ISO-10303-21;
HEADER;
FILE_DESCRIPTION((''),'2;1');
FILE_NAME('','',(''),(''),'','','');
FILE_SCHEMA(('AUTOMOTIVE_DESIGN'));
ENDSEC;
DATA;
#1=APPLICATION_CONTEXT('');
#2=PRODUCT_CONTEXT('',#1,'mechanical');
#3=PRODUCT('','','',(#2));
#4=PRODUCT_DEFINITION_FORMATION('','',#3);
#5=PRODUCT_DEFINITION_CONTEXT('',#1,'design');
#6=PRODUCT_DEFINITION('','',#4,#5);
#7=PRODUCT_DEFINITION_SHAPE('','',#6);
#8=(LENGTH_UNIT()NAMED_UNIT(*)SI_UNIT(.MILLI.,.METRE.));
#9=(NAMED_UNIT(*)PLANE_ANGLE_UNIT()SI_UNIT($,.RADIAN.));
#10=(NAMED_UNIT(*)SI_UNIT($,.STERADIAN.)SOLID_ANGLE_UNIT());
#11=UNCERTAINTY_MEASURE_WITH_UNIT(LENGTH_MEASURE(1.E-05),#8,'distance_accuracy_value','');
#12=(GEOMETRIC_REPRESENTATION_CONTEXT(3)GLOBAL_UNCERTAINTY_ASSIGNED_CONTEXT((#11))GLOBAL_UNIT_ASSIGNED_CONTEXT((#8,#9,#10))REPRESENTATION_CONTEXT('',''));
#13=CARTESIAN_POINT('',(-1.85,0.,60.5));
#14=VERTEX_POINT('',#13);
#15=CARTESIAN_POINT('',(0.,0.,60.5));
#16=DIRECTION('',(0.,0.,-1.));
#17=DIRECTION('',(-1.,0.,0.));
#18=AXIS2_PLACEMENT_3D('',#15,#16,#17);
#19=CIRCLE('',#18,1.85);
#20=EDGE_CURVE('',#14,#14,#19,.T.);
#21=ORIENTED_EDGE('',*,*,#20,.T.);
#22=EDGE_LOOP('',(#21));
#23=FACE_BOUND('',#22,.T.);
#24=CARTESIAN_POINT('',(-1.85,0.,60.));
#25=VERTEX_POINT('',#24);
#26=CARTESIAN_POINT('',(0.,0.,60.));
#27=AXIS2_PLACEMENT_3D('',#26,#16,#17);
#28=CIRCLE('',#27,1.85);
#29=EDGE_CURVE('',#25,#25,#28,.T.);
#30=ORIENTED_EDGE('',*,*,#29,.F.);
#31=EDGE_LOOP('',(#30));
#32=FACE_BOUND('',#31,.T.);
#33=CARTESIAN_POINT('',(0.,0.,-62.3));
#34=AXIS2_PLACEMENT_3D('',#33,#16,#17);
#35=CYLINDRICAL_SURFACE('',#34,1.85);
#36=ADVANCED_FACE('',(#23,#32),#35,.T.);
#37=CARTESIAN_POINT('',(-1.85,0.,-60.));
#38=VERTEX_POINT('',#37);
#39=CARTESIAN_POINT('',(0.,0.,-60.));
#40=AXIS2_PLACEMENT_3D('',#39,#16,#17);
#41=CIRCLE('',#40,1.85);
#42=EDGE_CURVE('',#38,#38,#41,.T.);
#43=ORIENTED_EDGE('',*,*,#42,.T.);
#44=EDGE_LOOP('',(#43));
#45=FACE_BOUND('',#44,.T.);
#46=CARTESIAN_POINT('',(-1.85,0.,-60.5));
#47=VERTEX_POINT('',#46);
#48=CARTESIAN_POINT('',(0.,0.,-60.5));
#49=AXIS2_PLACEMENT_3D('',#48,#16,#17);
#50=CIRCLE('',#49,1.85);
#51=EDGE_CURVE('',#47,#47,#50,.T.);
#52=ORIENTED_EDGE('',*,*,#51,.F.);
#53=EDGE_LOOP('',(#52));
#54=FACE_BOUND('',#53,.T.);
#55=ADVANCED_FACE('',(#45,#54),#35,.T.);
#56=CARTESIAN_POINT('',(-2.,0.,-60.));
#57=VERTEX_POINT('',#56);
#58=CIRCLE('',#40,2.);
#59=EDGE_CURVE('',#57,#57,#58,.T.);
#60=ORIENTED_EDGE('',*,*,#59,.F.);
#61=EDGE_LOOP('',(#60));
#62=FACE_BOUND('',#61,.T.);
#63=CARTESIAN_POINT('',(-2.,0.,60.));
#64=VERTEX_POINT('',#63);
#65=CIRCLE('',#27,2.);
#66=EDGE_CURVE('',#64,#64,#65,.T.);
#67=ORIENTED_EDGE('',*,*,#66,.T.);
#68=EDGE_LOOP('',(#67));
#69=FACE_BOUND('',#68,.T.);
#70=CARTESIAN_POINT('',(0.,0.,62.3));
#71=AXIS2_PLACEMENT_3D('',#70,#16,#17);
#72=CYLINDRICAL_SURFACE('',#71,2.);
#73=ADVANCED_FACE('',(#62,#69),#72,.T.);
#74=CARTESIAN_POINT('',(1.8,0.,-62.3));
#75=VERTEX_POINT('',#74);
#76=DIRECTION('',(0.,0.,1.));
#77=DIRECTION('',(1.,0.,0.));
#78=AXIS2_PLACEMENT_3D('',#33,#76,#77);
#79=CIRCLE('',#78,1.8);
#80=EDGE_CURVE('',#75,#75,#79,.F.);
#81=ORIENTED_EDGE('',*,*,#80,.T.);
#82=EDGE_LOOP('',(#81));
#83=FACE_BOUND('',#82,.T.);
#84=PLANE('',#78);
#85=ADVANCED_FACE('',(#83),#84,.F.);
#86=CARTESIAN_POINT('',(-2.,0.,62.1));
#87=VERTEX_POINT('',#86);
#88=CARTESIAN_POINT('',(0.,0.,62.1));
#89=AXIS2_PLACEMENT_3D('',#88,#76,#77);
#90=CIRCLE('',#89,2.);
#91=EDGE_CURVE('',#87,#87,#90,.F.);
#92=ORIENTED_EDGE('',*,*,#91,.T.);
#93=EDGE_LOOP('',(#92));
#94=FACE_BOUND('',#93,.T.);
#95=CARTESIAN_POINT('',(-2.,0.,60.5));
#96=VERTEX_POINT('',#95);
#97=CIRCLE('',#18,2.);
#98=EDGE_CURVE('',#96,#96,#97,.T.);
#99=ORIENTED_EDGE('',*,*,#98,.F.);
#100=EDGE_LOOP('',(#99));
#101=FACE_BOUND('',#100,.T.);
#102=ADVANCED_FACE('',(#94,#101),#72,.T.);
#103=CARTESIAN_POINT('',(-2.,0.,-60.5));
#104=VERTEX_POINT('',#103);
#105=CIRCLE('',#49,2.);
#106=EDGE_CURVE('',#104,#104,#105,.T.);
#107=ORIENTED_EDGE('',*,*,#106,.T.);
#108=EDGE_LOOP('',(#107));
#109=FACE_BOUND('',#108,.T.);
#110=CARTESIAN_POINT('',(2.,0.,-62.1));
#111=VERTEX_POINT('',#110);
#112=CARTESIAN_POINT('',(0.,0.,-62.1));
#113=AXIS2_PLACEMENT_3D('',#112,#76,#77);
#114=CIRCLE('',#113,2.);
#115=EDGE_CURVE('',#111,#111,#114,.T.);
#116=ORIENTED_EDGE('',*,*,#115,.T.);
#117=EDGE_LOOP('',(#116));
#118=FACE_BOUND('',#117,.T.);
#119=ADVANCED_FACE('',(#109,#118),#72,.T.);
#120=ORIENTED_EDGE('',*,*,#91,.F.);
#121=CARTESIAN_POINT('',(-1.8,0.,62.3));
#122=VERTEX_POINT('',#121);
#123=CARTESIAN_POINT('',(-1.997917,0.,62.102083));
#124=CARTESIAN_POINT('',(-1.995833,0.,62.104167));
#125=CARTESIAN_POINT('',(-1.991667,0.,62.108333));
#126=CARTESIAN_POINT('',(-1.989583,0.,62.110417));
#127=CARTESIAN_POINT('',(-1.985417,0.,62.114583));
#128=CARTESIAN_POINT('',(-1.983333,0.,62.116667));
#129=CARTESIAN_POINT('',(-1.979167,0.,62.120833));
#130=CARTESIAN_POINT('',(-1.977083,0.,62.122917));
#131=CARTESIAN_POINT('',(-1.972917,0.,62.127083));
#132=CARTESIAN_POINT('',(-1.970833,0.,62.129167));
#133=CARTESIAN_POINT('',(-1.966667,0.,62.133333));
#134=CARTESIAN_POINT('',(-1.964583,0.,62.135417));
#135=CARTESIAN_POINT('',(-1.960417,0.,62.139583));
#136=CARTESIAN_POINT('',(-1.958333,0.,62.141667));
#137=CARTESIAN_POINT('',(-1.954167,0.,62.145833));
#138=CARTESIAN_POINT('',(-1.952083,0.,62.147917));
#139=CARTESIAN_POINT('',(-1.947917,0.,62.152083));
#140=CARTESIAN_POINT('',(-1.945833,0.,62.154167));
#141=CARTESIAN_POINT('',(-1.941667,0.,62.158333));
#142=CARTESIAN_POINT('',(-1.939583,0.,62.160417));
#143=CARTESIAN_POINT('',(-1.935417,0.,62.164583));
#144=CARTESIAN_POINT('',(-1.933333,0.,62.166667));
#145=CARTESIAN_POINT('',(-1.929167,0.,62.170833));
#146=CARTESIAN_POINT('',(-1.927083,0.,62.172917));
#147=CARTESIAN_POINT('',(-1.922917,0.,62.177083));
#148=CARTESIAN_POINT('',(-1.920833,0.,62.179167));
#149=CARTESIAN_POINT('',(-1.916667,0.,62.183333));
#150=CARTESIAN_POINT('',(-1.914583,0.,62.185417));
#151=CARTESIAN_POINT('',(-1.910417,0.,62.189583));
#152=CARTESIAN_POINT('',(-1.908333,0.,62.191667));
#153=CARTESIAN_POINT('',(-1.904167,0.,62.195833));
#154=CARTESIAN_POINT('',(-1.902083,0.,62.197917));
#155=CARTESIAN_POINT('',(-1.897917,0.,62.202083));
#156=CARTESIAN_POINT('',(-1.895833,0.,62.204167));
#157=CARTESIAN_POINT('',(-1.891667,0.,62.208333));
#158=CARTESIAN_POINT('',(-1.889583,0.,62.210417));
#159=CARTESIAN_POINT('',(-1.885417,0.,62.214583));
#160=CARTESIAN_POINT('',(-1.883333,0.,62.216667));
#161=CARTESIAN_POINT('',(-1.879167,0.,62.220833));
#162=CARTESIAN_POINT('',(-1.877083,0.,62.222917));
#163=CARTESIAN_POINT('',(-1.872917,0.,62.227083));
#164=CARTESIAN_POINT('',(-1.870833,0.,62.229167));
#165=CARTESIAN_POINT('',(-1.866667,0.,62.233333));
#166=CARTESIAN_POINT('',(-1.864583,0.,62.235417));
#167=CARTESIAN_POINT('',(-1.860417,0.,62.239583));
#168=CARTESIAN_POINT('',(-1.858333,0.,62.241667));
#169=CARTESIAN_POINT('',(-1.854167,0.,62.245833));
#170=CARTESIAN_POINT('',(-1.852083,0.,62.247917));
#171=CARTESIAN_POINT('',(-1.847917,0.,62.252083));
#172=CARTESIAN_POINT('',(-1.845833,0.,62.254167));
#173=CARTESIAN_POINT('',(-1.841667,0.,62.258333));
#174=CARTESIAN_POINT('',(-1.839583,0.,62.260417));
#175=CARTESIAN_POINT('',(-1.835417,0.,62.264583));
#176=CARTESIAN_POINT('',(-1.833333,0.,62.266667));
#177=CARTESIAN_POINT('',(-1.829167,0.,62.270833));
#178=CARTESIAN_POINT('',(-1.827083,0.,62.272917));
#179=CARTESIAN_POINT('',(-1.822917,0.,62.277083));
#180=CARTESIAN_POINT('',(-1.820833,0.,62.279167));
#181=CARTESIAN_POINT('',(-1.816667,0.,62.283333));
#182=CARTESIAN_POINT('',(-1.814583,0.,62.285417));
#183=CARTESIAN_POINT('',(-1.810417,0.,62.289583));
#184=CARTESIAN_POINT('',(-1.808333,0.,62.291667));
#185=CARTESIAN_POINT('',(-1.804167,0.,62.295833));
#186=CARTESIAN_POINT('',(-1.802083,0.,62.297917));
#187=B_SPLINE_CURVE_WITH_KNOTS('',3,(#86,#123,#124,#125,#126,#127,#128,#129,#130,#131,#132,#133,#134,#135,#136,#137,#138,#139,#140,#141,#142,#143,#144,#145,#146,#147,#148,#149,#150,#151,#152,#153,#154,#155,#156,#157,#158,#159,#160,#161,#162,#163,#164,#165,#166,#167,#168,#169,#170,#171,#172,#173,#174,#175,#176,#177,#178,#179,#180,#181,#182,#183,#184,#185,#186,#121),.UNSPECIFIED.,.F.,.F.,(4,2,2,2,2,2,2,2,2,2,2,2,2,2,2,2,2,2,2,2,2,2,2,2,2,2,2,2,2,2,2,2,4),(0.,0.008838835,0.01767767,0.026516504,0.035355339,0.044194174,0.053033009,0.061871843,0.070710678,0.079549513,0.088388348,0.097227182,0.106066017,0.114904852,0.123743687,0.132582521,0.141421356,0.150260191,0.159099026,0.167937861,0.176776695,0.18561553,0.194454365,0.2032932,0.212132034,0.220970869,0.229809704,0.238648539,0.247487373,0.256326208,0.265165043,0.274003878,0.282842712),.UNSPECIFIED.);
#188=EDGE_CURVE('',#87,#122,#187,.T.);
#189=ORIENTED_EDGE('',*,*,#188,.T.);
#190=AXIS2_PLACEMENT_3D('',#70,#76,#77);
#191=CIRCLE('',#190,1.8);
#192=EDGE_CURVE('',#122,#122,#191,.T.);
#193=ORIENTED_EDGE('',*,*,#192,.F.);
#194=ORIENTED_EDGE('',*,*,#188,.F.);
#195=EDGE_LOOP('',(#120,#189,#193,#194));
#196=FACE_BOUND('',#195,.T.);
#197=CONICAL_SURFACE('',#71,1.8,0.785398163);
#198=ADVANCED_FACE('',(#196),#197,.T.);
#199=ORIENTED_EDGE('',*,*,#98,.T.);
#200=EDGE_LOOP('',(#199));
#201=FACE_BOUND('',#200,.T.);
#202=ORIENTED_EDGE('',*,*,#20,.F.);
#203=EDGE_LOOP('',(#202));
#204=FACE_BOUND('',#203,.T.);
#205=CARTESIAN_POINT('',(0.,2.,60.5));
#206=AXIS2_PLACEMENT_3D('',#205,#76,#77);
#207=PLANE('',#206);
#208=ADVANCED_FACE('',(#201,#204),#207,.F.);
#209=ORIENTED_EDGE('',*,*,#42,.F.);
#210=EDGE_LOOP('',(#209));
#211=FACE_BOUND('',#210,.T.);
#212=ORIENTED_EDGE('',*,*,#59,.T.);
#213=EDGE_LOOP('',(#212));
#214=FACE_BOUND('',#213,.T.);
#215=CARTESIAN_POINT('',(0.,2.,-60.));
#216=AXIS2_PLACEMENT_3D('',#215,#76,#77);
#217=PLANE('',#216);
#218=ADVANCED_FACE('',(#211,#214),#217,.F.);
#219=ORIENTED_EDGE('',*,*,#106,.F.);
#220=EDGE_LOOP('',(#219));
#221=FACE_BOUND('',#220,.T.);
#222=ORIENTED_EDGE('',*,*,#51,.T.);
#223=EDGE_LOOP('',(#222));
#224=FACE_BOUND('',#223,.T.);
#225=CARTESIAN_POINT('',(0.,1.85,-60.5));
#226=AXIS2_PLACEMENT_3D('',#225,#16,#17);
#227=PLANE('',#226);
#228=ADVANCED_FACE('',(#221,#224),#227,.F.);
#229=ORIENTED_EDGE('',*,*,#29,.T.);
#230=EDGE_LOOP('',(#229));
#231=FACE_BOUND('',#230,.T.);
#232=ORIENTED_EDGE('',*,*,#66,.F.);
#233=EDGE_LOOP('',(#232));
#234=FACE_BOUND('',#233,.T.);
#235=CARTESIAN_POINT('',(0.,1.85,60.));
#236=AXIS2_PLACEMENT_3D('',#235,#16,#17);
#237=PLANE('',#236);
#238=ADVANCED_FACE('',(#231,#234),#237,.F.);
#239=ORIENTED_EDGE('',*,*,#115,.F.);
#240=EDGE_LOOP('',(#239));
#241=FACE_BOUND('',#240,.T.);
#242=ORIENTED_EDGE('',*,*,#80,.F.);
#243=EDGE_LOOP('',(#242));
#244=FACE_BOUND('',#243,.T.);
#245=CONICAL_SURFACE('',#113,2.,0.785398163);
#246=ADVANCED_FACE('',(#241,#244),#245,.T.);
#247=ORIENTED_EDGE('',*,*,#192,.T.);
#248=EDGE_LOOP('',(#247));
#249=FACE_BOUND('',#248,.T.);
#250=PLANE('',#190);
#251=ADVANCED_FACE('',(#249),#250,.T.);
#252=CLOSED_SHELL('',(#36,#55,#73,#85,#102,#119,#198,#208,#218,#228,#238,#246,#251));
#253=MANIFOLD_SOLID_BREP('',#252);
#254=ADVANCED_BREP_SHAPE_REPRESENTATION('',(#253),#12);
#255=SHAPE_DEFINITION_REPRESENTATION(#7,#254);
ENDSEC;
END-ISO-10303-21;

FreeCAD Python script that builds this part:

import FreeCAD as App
import Part
import Sketcher
Q = App.Units.Quantity


def edges_at(feature, points):
    """Names of the edges that pass closest to the given points."""
    edges = feature.Shape.Edges
    near = lambda p: min(range(len(edges)), key=lambda i: edges[i].distToShape(Part.Vertex(*p))[0])
    return sorted({f"Edge{near(p) + 1}" for p in points})

doc = App.newDocument("Part")
params = doc.addObject("Spreadsheet::Sheet", "Params")
for row, (alias, value) in enumerate([
    ("sketch1_diameter", "4 mm"),
    ("pad1_length", "124.6 mm"),
    ("sketch2_height", "0.5 mm"),
    ("sketch2_width", "0.15 mm"),
    ("groove_angle", "360 deg"),
    ("chamfer_size", "0.2 mm"),
], start=1):
    params.set(f"A{row}", alias)
    params.set(f"B{row}", "=" + value)
    params.setAlias(f"B{row}", alias)

body = doc.addObject("PartDesign::Body", "Body")

# Sketch on XY plane
sketch1 = body.newObject("Sketcher::SketchObject", "Sketch")
sketch1.AttachmentSupport = (doc.getObject("XY_Plane"), [""])
sketch1.MapMode = "FlatFace"
sketch1.addGeometry(Part.Circle(App.Vector(0, 0, 0), App.Vector(0, 0, 1), 2), False)
sketch1.addConstraint([
    Sketcher.Constraint("Coincident", 0, 3, -1, 1),
    Sketcher.Constraint("Diameter", 0, Q("4 mm")),
])
sketch1.setExpression("Constraints[1]", "Params.sketch1_diameter")
pad1 = body.newObject("PartDesign::Pad", "Pad")
pad1.Profile = sketch1
pad1.setExpression("Length", "Params.pad1_length")
pad1.Midplane = True

# Sketch on YZ plane
sketch2 = body.newObject("Sketcher::SketchObject", "Sketch001")
sketch2.AttachmentSupport = (doc.getObject("YZ_Plane"), [""])
sketch2.MapMode = "FlatFace"
sketch2.addGeometry([
    Part.LineSegment(App.Vector(2, 60.5, 0), App.Vector(1.85, 60.5, 0)),  # 0
    Part.LineSegment(App.Vector(1.85, 60.5, 0), App.Vector(1.85, 60, 0)),  # 1
    Part.LineSegment(App.Vector(1.85, 60, 0), App.Vector(2, 60, 0)),  # 2
    Part.LineSegment(App.Vector(2, 60, 0), App.Vector(2, 60.5, 0)),  # 3
    Part.LineSegment(App.Vector(2, -60, 0), App.Vector(1.85, -60, 0)),  # 4
    Part.LineSegment(App.Vector(1.85, -60, 0), App.Vector(1.85, -60.5, 0)),  # 5
    Part.LineSegment(App.Vector(1.85, -60.5, 0), App.Vector(2, -60.5, 0)),  # 6
    Part.LineSegment(App.Vector(2, -60.5, 0), App.Vector(2, -60, 0)),  # 7
], False)
sketch2.addConstraint([
    Sketcher.Constraint("Coincident", 0, 2, 1, 1),
    Sketcher.Constraint("Coincident", 1, 2, 2, 1),
    Sketcher.Constraint("Coincident", 2, 2, 3, 1),
    Sketcher.Constraint("Coincident", 3, 2, 0, 1),
    Sketcher.Constraint("Coincident", 4, 2, 5, 1),
    Sketcher.Constraint("Coincident", 5, 2, 6, 1),
    Sketcher.Constraint("Coincident", 6, 2, 7, 1),
    Sketcher.Constraint("Coincident", 7, 2, 4, 1),
    Sketcher.Constraint("Horizontal", 0),
    Sketcher.Constraint("Vertical", 1),
    Sketcher.Constraint("Horizontal", 2),
    Sketcher.Constraint("Vertical", 3),
    Sketcher.Constraint("Horizontal", 4),
    Sketcher.Constraint("Vertical", 5),
    Sketcher.Constraint("Horizontal", 6),
    Sketcher.Constraint("Vertical", 7),
    Sketcher.Constraint("Symmetric", 1, 2, 4, 2, -1),
    Sketcher.Constraint("Symmetric", 3, 2, 6, 2, -1),
    Sketcher.Constraint("DistanceY", 1, 2, 1, 1, Q("0.5 mm")),
    Sketcher.Constraint("DistanceY", -1, 1, 1, 2, Q("60 mm")),
    Sketcher.Constraint("DistanceX", -1, 1, 2, 2, Q("2 mm")),
    Sketcher.Constraint("DistanceX", 0, 2, 0, 1, Q("0.15 mm")),
])
sketch2.setExpression("Constraints[18]", "Params.sketch2_height")
sketch2.setExpression("Constraints[21]", "Params.sketch2_width")
groove = body.newObject("PartDesign::Groove", "Groove")
groove.Profile = sketch2
groove.ReferenceAxis = (sketch2, ["V_Axis"])
groove.setExpression("Angle", "Params.groove_angle")
doc.recompute()

chamfer = body.newObject("PartDesign::Chamfer", "Chamfer")
chamfer.Base = (groove, edges_at(groove, [(-2, 0, -62.3), (-2, 0, 62.3)]))
chamfer.setExpression("Size", "Params.chamfer_size")

doc.recompute()
